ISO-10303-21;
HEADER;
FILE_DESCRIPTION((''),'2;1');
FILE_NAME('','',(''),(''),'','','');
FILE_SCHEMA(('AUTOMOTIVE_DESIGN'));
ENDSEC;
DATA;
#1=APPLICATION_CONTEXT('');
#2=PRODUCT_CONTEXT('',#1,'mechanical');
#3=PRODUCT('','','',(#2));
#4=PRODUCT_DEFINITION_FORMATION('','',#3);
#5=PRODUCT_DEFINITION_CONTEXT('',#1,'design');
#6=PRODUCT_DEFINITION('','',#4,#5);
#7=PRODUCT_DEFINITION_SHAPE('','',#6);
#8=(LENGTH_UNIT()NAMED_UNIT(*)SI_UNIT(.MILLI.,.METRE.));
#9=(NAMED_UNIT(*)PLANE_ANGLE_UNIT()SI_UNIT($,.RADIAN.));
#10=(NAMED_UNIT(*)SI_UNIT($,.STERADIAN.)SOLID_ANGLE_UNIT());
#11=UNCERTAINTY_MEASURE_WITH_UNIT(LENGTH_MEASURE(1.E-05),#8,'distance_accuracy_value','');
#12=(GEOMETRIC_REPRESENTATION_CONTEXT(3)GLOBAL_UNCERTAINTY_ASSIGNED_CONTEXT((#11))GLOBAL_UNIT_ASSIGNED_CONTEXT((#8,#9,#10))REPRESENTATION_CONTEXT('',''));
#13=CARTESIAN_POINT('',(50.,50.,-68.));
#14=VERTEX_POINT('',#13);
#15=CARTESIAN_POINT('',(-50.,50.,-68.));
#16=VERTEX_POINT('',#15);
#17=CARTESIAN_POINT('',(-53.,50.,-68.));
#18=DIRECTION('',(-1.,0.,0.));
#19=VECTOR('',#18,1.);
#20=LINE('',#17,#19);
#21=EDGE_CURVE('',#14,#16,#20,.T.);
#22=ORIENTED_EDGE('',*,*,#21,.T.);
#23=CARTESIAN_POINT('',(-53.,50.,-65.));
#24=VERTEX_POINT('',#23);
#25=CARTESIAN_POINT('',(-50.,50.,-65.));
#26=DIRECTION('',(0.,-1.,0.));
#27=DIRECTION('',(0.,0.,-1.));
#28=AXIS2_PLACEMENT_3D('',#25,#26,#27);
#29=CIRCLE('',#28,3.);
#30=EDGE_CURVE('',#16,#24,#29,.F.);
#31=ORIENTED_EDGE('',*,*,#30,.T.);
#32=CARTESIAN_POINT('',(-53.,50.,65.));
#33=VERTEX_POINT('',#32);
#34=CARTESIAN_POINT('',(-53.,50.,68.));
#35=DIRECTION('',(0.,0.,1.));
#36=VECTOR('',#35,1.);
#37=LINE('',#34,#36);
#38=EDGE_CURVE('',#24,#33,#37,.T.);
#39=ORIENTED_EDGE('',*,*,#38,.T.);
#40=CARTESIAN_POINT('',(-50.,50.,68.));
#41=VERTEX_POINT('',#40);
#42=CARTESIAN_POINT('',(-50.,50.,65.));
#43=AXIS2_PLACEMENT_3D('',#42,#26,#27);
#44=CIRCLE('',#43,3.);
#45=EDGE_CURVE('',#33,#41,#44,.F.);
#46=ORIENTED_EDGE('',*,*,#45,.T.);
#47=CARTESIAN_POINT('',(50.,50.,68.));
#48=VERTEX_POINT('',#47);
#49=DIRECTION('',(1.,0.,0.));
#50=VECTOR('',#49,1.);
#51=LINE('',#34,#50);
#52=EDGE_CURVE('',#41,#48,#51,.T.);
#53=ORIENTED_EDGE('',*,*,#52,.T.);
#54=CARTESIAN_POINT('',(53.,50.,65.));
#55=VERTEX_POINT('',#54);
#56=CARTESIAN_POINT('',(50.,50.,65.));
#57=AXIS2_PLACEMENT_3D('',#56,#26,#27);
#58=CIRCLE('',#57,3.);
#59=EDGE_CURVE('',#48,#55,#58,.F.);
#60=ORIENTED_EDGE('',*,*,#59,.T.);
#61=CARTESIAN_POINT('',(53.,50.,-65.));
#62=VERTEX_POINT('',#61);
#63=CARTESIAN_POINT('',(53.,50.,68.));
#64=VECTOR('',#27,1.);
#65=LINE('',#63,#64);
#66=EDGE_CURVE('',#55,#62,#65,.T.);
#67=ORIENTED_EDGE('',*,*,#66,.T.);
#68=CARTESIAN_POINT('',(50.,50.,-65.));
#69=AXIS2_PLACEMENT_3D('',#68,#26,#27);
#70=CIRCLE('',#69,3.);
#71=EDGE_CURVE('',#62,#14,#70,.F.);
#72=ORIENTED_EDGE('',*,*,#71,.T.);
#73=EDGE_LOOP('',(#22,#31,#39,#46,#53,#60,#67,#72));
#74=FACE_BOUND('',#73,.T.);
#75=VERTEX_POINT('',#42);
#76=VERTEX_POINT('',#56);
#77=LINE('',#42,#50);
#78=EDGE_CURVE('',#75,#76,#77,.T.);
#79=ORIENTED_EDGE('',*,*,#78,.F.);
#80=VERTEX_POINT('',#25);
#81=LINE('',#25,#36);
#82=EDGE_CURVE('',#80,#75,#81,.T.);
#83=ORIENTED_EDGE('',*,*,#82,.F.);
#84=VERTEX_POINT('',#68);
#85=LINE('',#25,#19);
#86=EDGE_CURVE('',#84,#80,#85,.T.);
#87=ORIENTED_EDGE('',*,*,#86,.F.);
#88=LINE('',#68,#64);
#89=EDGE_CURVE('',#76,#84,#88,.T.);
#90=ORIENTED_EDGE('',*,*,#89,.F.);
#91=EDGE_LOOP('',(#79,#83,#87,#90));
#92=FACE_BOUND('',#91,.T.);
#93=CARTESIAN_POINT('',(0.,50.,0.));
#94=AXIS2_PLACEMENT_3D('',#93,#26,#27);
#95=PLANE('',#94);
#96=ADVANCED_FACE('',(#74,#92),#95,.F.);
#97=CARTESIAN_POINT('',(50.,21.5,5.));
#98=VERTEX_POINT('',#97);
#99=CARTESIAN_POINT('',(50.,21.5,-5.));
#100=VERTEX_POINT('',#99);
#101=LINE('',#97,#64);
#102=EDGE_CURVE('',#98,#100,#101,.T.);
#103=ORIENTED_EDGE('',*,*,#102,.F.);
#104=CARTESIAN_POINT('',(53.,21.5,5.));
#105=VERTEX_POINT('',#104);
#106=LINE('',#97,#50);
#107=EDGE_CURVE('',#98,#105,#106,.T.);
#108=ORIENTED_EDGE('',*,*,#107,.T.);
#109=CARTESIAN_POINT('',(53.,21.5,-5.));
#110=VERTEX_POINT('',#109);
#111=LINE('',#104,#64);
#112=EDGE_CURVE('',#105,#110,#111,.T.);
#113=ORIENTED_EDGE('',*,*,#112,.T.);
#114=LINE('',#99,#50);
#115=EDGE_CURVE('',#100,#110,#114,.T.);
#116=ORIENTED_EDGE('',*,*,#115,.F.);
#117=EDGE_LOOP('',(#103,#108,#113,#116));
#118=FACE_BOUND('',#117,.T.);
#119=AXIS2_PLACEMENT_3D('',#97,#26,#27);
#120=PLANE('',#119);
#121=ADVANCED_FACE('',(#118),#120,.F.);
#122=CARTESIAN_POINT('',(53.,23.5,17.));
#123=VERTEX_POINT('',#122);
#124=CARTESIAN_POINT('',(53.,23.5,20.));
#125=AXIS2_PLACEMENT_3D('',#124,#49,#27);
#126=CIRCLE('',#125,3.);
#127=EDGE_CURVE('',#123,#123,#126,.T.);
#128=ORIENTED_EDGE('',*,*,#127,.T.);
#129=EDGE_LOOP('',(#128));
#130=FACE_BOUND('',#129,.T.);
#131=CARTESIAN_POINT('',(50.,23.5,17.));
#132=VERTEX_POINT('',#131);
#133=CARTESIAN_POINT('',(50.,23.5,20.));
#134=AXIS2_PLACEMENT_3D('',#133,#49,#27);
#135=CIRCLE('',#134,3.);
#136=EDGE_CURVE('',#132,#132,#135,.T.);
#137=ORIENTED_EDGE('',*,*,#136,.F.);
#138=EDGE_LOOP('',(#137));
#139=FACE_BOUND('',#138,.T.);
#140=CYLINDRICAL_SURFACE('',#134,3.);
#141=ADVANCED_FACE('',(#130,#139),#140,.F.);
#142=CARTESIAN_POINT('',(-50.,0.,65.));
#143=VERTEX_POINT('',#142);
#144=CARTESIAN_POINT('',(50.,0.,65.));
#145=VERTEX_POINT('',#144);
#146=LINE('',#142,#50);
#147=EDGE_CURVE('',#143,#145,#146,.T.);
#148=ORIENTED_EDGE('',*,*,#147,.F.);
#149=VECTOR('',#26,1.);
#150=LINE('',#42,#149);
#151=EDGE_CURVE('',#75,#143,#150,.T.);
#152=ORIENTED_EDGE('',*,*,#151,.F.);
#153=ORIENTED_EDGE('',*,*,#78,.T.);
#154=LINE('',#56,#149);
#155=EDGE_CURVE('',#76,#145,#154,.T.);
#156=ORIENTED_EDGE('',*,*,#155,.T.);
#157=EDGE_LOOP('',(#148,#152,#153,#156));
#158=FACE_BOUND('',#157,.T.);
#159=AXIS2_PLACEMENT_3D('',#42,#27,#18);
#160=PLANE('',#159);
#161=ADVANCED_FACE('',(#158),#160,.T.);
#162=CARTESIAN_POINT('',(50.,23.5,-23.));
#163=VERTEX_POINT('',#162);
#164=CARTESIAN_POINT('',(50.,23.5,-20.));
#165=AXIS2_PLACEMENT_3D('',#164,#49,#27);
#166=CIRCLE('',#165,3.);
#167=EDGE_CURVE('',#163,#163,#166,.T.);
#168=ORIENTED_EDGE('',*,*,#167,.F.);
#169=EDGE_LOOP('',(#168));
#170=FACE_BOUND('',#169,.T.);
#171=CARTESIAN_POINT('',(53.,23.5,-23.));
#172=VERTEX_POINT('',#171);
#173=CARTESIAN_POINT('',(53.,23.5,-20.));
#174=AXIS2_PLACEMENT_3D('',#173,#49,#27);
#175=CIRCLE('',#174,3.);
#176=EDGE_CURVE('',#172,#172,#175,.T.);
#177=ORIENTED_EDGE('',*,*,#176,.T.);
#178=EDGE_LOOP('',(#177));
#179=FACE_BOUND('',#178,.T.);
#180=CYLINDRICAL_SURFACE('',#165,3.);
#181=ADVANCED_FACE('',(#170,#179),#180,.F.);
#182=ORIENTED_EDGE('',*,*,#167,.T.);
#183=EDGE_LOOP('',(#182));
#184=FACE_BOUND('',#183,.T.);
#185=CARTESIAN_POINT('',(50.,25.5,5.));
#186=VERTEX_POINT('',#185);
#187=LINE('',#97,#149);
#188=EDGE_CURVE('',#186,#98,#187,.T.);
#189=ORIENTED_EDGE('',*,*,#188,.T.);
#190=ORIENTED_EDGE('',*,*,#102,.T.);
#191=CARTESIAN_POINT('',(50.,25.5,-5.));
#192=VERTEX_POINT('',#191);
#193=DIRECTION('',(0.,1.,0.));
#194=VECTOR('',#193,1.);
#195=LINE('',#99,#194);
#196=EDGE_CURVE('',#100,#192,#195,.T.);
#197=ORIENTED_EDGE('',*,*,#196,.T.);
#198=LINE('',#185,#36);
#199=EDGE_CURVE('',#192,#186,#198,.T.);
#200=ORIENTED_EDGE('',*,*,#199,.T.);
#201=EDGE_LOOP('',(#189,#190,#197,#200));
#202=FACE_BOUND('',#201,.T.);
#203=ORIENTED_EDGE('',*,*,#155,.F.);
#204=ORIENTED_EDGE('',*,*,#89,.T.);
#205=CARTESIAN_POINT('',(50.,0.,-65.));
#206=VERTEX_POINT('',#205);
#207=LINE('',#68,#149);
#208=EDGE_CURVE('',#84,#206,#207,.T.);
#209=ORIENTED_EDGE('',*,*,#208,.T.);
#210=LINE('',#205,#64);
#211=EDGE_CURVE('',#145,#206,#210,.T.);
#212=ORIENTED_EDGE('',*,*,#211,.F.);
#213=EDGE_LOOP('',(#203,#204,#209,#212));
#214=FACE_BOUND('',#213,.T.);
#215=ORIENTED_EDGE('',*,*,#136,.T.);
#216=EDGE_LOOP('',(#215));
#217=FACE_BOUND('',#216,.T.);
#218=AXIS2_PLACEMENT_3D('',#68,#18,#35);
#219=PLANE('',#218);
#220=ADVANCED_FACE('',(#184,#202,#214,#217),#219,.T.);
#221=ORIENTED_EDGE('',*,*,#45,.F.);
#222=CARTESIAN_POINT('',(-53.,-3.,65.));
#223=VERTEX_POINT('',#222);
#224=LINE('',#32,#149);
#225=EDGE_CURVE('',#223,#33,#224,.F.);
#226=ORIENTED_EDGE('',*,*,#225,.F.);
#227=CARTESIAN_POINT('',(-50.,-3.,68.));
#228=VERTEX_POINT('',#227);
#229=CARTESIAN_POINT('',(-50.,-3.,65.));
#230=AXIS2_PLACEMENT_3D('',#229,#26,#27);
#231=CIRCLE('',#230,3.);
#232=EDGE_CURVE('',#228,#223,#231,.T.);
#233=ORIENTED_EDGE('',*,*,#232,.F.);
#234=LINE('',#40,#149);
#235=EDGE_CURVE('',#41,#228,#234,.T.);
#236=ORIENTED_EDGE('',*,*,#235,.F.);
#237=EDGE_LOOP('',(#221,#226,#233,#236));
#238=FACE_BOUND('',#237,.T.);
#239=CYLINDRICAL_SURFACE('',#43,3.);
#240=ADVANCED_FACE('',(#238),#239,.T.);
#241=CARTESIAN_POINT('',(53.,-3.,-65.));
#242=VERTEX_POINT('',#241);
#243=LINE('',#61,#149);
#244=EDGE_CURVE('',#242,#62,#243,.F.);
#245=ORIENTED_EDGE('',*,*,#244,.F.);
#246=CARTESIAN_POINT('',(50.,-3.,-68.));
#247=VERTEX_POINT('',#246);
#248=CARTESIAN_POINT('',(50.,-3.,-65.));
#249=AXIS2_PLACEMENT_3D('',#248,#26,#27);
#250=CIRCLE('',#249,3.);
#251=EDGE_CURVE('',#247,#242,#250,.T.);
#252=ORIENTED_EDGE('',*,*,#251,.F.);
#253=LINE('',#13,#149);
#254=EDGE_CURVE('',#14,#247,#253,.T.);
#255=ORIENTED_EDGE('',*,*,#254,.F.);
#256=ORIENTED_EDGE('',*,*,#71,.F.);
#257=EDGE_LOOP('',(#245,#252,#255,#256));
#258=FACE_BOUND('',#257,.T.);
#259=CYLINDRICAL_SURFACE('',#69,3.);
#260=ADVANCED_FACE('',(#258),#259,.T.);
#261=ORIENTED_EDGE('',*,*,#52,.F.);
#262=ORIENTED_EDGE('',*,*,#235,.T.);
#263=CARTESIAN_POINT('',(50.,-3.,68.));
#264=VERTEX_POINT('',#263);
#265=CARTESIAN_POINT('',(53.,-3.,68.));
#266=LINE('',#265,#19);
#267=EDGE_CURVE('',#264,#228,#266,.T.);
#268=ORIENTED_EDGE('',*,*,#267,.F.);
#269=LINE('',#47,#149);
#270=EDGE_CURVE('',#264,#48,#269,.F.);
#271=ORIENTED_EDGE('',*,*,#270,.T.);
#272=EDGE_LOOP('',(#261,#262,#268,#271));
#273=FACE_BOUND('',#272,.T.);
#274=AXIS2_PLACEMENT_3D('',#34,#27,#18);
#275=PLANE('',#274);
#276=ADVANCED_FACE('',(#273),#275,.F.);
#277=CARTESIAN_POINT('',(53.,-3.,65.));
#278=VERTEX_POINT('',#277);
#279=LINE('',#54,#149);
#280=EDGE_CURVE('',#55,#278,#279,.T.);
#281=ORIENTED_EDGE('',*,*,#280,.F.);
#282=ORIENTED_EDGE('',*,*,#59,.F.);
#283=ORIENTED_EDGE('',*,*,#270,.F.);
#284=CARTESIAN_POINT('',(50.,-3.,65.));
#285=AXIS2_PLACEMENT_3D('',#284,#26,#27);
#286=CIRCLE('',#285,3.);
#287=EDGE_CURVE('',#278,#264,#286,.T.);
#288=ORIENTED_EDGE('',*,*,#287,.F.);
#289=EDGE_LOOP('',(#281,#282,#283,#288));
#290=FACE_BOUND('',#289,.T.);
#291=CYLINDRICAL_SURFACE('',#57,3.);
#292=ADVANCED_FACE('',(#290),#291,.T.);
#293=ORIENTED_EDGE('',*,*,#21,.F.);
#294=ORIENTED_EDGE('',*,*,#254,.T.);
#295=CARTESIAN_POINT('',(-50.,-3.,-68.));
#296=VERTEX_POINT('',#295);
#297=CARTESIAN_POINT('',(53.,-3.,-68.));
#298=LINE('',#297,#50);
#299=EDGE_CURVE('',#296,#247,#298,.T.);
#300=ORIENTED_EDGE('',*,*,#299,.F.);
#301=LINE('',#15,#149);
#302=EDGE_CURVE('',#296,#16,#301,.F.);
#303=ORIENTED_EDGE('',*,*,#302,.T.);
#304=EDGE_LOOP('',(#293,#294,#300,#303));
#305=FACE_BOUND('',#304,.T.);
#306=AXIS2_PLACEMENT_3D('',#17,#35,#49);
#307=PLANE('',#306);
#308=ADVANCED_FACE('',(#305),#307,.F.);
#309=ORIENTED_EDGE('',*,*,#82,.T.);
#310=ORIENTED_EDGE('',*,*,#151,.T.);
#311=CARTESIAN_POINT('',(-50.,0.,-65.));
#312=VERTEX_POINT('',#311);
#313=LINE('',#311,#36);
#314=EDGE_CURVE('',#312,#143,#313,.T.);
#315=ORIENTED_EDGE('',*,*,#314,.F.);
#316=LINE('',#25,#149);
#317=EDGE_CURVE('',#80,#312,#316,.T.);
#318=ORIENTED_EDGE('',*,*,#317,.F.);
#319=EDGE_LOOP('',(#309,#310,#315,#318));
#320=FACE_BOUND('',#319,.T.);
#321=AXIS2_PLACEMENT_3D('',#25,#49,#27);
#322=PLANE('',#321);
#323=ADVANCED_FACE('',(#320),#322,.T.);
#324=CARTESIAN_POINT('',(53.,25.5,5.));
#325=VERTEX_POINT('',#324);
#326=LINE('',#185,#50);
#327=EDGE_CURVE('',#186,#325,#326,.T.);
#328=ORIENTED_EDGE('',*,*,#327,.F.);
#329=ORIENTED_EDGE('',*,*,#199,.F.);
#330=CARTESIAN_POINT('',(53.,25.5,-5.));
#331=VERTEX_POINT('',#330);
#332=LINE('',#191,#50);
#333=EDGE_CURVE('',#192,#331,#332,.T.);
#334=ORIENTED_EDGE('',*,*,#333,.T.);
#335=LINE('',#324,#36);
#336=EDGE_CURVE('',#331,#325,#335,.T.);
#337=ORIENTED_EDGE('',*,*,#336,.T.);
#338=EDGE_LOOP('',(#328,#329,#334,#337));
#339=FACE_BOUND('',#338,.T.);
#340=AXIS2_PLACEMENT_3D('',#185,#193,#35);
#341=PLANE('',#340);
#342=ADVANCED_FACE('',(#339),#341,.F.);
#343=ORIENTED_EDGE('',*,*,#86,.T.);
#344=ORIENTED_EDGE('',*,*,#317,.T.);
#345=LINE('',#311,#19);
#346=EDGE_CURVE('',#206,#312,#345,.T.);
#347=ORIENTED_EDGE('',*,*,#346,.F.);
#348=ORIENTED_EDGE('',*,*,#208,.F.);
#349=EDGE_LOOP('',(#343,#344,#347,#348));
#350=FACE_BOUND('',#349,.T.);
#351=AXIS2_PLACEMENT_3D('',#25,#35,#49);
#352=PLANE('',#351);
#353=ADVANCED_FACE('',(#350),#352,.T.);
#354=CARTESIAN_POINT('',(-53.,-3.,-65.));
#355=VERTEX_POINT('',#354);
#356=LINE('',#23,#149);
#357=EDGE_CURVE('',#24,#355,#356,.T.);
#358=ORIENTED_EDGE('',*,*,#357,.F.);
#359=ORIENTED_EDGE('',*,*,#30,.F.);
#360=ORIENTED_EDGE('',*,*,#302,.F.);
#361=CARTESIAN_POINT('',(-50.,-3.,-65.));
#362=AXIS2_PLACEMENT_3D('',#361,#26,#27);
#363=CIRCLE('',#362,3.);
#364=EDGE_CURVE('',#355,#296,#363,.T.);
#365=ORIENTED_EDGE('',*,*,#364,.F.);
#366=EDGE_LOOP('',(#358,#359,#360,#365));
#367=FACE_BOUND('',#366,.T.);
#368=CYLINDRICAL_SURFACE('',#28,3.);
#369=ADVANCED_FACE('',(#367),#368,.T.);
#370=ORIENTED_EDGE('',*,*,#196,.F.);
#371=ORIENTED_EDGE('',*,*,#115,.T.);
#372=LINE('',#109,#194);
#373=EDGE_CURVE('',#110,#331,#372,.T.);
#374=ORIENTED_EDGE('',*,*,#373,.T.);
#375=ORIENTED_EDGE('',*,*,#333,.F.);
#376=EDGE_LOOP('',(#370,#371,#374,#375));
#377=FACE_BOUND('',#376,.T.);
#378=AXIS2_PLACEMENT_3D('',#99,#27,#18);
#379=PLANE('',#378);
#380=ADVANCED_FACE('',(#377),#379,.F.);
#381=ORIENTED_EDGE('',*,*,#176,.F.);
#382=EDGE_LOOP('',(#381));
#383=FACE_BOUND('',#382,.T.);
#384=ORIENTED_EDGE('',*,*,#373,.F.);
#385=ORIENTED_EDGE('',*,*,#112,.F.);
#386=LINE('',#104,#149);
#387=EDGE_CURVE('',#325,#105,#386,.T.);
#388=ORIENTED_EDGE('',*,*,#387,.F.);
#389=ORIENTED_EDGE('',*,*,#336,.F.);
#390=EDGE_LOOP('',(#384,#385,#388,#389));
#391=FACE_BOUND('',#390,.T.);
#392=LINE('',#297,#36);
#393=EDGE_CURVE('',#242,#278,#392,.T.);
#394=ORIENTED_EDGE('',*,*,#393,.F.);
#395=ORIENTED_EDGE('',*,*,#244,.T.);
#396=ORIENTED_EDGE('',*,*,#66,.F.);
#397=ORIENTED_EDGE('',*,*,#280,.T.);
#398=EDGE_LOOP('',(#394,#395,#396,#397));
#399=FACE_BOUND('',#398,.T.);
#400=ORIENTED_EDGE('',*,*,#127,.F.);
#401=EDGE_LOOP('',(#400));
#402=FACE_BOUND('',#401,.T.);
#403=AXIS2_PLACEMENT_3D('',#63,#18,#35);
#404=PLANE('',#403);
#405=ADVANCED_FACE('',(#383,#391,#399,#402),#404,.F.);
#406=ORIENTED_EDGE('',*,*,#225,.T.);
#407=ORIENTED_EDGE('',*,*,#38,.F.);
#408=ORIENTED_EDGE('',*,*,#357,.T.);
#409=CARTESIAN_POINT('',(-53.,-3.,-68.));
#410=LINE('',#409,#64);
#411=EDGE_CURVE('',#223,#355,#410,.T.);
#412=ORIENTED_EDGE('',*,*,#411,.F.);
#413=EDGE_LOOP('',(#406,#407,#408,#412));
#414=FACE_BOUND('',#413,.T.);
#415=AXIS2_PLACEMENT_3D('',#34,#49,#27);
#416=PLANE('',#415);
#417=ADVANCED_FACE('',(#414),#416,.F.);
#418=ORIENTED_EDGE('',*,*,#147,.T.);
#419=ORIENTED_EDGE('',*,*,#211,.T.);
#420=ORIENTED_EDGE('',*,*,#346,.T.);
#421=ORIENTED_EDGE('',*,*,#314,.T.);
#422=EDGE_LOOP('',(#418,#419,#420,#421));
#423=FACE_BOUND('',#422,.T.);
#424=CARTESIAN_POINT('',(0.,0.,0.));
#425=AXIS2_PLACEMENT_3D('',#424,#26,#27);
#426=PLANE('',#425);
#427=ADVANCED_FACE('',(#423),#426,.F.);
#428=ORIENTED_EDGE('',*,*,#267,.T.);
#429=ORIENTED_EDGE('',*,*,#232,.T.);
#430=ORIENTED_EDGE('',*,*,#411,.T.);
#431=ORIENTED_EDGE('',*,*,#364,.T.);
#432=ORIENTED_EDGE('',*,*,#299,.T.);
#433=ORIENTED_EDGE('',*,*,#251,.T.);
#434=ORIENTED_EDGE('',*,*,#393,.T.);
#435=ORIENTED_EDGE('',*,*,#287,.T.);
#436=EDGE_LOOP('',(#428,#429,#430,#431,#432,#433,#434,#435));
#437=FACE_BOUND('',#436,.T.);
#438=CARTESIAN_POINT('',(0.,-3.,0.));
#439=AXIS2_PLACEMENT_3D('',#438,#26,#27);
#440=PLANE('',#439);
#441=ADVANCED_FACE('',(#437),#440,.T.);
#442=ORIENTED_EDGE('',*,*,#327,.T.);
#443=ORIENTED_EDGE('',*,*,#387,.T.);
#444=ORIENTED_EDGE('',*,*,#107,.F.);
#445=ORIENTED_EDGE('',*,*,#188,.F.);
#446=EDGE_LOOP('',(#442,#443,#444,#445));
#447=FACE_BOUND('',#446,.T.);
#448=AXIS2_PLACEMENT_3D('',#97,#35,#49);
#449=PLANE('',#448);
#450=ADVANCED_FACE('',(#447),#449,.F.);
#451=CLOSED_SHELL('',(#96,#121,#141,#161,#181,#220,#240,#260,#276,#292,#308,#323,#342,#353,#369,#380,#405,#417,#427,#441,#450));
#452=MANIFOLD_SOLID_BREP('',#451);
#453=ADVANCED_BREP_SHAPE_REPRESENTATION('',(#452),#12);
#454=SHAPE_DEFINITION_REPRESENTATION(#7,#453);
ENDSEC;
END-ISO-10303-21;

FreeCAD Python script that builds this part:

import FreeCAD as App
import Part
import Sketcher

V = App.Vector


def edges_at(feature, points):
    """Names of the edges that pass closest to the given points."""
    edges = feature.Shape.Edges
    near = lambda p: min(range(len(edges)), key=lambda i: edges[i].distToShape(Part.Vertex(*p))[0])
    return sorted({f"Edge{near(p) + 1}" for p in points})

doc = App.newDocument("Part")
body = doc.addObject("PartDesign::Body", "Body")

# Sketch on XZ plane
sketch1 = body.newObject("Sketcher::SketchObject", "Sketch")
sketch1.AttachmentSupport = (doc.getObject("XZ_Plane"), [""])
sketch1.MapMode = "FlatFace"
sketch1.addGeometry([
    Part.LineSegment(V(-53, -68, 0), V(-53, 68, 0)),  # 0
    Part.LineSegment(V(-53, 68, 0), V(53, 68, 0)),  # 1
    Part.LineSegment(V(53, 68, 0), V(53, -68, 0)),  # 2
    Part.LineSegment(V(53, -68, 0), V(-53, -68, 0)),  # 3
    Part.LineSegment(V(50, 65, 0), V(-50, 65, 0)),  # 4
    Part.LineSegment(V(-50, 65, 0), V(-50, -65, 0)),  # 5
    Part.LineSegment(V(-50, -65, 0), V(50, -65, 0)),  # 6
    Part.LineSegment(V(50, -65, 0), V(50, 65, 0)),  # 7
], False)
sketch1.addConstraint([
    Sketcher.Constraint("Coincident", 0, 2, 1, 1),
    Sketcher.Constraint("Coincident", 1, 2, 2, 1),
    Sketcher.Constraint("Coincident", 2, 2, 3, 1),
    Sketcher.Constraint("Coincident", 3, 2, 0, 1),
    Sketcher.Constraint("Coincident", 4, 2, 5, 1),
    Sketcher.Constraint("Coincident", 5, 2, 6, 1),
    Sketcher.Constraint("Coincident", 6, 2, 7, 1),
    Sketcher.Constraint("Coincident", 7, 2, 4, 1),
    Sketcher.Constraint("Vertical", 0),
    Sketcher.Constraint("Horizontal", 1),
    Sketcher.Constraint("Vertical", 2),
    Sketcher.Constraint("Horizontal", 3),
    Sketcher.Constraint("Horizontal", 4),
    Sketcher.Constraint("Vertical", 5),
    Sketcher.Constraint("Horizontal", 6),
    Sketcher.Constraint("Vertical", 7),
    Sketcher.Constraint("Symmetric", 0, 2, 2, 2, -1, 1),
    Sketcher.Constraint("Symmetric", 4, 2, 6, 2, -1, 1),
    Sketcher.Constraint("DistanceX", 1, 1, 1, 2, 106.0),
    Sketcher.Constraint("DistanceX", 4, 2, 4, 1, 100.0),
    Sketcher.Constraint("DistanceY", 0, 1, 0, 2, 136.0),
    Sketcher.Constraint("DistanceY", 5, 2, 5, 1, 130.0),
])
pad1 = body.newObject("PartDesign::Pad", "Pad")
pad1.Profile = sketch1
pad1.Length = 50
pad1.Reversed = True

# Sketch on XZ plane
sketch2 = body.newObject("Sketcher::SketchObject", "Sketch001")
sketch2.AttachmentSupport = (doc.getObject("XZ_Plane"), [""])
sketch2.MapMode = "FlatFace"
sketch2.addGeometry([
    Part.LineSegment(V(-53, 68, 0), V(-53, -68, 0)),
    Part.LineSegment(V(-53, -68, 0), V(53, -68, 0)),
    Part.LineSegment(V(53, -68, 0), V(53, 68, 0)),
    Part.LineSegment(V(53, 68, 0), V(-53, 68, 0)),
], False)
sketch2.addConstraint([
    Sketcher.Constraint("Coincident", 0, 2, 1, 1),
    Sketcher.Constraint("Coincident", 1, 2, 2, 1),
    Sketcher.Constraint("Coincident", 2, 2, 3, 1),
    Sketcher.Constraint("Coincident", 3, 2, 0, 1),
    Sketcher.Constraint("Vertical", 0),
    Sketcher.Constraint("Horizontal", 1),
    Sketcher.Constraint("Vertical", 2),
    Sketcher.Constraint("Horizontal", 3),
    Sketcher.Constraint("Symmetric", 0, 2, 2, 2, -1, 1),
    Sketcher.Constraint("DistanceX", 1, 1, 1, 2, 106.0),
    Sketcher.Constraint("DistanceY", 0, 2, 0, 1, 136.0),
])
pad2 = body.newObject("PartDesign::Pad", "Pad001")
pad2.Profile = sketch2
pad2.Length = 3
doc.recompute()

fillet = body.newObject("PartDesign::Fillet", "Fillet")
fillet.Base = (pad2, edges_at(pad2, [
    (53, 23.5, 68),
    (-53, 23.5, 68),
    (-53, 23.5, -68),
    (53, 23.5, -68),
]))
fillet.Radius = 3

# Sketch on YZ plane
sketch3 = body.newObject("Sketcher::SketchObject", "Sketch002")
sketch3.AttachmentSupport = (doc.getObject("YZ_Plane"), [""])
sketch3.MapMode = "FlatFace"
sketch3.AttachmentOffset = App.Placement(V(0, 0, 53), App.Rotation())
sketch3.addGeometry([
    Part.Circle(V(23.5, 20, 0), V(0, 0, 1), 3),  # 0
    Part.Circle(V(23.5, -20, 0), V(0, 0, 1), 3),  # 1
    Part.LineSegment(V(25.5, 5, 0), V(21.5, 5, 0)),  # 2
    Part.LineSegment(V(21.5, 5, 0), V(21.5, -5, 0)),  # 3
    Part.LineSegment(V(21.5, -5, 0), V(25.5, -5, 0)),  # 4
    Part.LineSegment(V(25.5, -5, 0), V(25.5, 5, 0)),  # 5
], False)
sketch3.addConstraint([
    Sketcher.Constraint("Coincident", 2, 2, 3, 1),
    Sketcher.Constraint("Coincident", 3, 2, 4, 1),
    Sketcher.Constraint("Coincident", 4, 2, 5, 1),
    Sketcher.Constraint("Coincident", 5, 2, 2, 1),
    Sketcher.Constraint("Horizontal", 2),
    Sketcher.Constraint("Vertical", 3),
    Sketcher.Constraint("Horizontal", 4),
    Sketcher.Constraint("Vertical", 5),
    Sketcher.Constraint("Equal", 0, 1),
    Sketcher.Constraint("Symmetric", 0, 3, 1, 3, -1),
    Sketcher.Constraint("Diameter", 0, 6.0),
    Sketcher.Constraint("DistanceX", 2, 2, 2, 1, 4.0),
    Sketcher.Constraint("DistanceY", 3, 2, 3, 1, 10.0),
    Sketcher.Constraint("DistanceY", -1, 1, 0, 3, 20.0),
    Sketcher.Constraint("DistanceY", -1, 1, 2, 2, 5.0),
    Sketcher.Constraint("DistanceX", 2, 2, 0, 3, 2.0),
    Sketcher.Constraint("DistanceX", -1, 1, 0, 3, 23.5),
])
pocket1 = body.newObject("PartDesign::Pocket", "Pocket")
pocket1.Profile = sketch3
pocket1.Length = 3

doc.recompute()
